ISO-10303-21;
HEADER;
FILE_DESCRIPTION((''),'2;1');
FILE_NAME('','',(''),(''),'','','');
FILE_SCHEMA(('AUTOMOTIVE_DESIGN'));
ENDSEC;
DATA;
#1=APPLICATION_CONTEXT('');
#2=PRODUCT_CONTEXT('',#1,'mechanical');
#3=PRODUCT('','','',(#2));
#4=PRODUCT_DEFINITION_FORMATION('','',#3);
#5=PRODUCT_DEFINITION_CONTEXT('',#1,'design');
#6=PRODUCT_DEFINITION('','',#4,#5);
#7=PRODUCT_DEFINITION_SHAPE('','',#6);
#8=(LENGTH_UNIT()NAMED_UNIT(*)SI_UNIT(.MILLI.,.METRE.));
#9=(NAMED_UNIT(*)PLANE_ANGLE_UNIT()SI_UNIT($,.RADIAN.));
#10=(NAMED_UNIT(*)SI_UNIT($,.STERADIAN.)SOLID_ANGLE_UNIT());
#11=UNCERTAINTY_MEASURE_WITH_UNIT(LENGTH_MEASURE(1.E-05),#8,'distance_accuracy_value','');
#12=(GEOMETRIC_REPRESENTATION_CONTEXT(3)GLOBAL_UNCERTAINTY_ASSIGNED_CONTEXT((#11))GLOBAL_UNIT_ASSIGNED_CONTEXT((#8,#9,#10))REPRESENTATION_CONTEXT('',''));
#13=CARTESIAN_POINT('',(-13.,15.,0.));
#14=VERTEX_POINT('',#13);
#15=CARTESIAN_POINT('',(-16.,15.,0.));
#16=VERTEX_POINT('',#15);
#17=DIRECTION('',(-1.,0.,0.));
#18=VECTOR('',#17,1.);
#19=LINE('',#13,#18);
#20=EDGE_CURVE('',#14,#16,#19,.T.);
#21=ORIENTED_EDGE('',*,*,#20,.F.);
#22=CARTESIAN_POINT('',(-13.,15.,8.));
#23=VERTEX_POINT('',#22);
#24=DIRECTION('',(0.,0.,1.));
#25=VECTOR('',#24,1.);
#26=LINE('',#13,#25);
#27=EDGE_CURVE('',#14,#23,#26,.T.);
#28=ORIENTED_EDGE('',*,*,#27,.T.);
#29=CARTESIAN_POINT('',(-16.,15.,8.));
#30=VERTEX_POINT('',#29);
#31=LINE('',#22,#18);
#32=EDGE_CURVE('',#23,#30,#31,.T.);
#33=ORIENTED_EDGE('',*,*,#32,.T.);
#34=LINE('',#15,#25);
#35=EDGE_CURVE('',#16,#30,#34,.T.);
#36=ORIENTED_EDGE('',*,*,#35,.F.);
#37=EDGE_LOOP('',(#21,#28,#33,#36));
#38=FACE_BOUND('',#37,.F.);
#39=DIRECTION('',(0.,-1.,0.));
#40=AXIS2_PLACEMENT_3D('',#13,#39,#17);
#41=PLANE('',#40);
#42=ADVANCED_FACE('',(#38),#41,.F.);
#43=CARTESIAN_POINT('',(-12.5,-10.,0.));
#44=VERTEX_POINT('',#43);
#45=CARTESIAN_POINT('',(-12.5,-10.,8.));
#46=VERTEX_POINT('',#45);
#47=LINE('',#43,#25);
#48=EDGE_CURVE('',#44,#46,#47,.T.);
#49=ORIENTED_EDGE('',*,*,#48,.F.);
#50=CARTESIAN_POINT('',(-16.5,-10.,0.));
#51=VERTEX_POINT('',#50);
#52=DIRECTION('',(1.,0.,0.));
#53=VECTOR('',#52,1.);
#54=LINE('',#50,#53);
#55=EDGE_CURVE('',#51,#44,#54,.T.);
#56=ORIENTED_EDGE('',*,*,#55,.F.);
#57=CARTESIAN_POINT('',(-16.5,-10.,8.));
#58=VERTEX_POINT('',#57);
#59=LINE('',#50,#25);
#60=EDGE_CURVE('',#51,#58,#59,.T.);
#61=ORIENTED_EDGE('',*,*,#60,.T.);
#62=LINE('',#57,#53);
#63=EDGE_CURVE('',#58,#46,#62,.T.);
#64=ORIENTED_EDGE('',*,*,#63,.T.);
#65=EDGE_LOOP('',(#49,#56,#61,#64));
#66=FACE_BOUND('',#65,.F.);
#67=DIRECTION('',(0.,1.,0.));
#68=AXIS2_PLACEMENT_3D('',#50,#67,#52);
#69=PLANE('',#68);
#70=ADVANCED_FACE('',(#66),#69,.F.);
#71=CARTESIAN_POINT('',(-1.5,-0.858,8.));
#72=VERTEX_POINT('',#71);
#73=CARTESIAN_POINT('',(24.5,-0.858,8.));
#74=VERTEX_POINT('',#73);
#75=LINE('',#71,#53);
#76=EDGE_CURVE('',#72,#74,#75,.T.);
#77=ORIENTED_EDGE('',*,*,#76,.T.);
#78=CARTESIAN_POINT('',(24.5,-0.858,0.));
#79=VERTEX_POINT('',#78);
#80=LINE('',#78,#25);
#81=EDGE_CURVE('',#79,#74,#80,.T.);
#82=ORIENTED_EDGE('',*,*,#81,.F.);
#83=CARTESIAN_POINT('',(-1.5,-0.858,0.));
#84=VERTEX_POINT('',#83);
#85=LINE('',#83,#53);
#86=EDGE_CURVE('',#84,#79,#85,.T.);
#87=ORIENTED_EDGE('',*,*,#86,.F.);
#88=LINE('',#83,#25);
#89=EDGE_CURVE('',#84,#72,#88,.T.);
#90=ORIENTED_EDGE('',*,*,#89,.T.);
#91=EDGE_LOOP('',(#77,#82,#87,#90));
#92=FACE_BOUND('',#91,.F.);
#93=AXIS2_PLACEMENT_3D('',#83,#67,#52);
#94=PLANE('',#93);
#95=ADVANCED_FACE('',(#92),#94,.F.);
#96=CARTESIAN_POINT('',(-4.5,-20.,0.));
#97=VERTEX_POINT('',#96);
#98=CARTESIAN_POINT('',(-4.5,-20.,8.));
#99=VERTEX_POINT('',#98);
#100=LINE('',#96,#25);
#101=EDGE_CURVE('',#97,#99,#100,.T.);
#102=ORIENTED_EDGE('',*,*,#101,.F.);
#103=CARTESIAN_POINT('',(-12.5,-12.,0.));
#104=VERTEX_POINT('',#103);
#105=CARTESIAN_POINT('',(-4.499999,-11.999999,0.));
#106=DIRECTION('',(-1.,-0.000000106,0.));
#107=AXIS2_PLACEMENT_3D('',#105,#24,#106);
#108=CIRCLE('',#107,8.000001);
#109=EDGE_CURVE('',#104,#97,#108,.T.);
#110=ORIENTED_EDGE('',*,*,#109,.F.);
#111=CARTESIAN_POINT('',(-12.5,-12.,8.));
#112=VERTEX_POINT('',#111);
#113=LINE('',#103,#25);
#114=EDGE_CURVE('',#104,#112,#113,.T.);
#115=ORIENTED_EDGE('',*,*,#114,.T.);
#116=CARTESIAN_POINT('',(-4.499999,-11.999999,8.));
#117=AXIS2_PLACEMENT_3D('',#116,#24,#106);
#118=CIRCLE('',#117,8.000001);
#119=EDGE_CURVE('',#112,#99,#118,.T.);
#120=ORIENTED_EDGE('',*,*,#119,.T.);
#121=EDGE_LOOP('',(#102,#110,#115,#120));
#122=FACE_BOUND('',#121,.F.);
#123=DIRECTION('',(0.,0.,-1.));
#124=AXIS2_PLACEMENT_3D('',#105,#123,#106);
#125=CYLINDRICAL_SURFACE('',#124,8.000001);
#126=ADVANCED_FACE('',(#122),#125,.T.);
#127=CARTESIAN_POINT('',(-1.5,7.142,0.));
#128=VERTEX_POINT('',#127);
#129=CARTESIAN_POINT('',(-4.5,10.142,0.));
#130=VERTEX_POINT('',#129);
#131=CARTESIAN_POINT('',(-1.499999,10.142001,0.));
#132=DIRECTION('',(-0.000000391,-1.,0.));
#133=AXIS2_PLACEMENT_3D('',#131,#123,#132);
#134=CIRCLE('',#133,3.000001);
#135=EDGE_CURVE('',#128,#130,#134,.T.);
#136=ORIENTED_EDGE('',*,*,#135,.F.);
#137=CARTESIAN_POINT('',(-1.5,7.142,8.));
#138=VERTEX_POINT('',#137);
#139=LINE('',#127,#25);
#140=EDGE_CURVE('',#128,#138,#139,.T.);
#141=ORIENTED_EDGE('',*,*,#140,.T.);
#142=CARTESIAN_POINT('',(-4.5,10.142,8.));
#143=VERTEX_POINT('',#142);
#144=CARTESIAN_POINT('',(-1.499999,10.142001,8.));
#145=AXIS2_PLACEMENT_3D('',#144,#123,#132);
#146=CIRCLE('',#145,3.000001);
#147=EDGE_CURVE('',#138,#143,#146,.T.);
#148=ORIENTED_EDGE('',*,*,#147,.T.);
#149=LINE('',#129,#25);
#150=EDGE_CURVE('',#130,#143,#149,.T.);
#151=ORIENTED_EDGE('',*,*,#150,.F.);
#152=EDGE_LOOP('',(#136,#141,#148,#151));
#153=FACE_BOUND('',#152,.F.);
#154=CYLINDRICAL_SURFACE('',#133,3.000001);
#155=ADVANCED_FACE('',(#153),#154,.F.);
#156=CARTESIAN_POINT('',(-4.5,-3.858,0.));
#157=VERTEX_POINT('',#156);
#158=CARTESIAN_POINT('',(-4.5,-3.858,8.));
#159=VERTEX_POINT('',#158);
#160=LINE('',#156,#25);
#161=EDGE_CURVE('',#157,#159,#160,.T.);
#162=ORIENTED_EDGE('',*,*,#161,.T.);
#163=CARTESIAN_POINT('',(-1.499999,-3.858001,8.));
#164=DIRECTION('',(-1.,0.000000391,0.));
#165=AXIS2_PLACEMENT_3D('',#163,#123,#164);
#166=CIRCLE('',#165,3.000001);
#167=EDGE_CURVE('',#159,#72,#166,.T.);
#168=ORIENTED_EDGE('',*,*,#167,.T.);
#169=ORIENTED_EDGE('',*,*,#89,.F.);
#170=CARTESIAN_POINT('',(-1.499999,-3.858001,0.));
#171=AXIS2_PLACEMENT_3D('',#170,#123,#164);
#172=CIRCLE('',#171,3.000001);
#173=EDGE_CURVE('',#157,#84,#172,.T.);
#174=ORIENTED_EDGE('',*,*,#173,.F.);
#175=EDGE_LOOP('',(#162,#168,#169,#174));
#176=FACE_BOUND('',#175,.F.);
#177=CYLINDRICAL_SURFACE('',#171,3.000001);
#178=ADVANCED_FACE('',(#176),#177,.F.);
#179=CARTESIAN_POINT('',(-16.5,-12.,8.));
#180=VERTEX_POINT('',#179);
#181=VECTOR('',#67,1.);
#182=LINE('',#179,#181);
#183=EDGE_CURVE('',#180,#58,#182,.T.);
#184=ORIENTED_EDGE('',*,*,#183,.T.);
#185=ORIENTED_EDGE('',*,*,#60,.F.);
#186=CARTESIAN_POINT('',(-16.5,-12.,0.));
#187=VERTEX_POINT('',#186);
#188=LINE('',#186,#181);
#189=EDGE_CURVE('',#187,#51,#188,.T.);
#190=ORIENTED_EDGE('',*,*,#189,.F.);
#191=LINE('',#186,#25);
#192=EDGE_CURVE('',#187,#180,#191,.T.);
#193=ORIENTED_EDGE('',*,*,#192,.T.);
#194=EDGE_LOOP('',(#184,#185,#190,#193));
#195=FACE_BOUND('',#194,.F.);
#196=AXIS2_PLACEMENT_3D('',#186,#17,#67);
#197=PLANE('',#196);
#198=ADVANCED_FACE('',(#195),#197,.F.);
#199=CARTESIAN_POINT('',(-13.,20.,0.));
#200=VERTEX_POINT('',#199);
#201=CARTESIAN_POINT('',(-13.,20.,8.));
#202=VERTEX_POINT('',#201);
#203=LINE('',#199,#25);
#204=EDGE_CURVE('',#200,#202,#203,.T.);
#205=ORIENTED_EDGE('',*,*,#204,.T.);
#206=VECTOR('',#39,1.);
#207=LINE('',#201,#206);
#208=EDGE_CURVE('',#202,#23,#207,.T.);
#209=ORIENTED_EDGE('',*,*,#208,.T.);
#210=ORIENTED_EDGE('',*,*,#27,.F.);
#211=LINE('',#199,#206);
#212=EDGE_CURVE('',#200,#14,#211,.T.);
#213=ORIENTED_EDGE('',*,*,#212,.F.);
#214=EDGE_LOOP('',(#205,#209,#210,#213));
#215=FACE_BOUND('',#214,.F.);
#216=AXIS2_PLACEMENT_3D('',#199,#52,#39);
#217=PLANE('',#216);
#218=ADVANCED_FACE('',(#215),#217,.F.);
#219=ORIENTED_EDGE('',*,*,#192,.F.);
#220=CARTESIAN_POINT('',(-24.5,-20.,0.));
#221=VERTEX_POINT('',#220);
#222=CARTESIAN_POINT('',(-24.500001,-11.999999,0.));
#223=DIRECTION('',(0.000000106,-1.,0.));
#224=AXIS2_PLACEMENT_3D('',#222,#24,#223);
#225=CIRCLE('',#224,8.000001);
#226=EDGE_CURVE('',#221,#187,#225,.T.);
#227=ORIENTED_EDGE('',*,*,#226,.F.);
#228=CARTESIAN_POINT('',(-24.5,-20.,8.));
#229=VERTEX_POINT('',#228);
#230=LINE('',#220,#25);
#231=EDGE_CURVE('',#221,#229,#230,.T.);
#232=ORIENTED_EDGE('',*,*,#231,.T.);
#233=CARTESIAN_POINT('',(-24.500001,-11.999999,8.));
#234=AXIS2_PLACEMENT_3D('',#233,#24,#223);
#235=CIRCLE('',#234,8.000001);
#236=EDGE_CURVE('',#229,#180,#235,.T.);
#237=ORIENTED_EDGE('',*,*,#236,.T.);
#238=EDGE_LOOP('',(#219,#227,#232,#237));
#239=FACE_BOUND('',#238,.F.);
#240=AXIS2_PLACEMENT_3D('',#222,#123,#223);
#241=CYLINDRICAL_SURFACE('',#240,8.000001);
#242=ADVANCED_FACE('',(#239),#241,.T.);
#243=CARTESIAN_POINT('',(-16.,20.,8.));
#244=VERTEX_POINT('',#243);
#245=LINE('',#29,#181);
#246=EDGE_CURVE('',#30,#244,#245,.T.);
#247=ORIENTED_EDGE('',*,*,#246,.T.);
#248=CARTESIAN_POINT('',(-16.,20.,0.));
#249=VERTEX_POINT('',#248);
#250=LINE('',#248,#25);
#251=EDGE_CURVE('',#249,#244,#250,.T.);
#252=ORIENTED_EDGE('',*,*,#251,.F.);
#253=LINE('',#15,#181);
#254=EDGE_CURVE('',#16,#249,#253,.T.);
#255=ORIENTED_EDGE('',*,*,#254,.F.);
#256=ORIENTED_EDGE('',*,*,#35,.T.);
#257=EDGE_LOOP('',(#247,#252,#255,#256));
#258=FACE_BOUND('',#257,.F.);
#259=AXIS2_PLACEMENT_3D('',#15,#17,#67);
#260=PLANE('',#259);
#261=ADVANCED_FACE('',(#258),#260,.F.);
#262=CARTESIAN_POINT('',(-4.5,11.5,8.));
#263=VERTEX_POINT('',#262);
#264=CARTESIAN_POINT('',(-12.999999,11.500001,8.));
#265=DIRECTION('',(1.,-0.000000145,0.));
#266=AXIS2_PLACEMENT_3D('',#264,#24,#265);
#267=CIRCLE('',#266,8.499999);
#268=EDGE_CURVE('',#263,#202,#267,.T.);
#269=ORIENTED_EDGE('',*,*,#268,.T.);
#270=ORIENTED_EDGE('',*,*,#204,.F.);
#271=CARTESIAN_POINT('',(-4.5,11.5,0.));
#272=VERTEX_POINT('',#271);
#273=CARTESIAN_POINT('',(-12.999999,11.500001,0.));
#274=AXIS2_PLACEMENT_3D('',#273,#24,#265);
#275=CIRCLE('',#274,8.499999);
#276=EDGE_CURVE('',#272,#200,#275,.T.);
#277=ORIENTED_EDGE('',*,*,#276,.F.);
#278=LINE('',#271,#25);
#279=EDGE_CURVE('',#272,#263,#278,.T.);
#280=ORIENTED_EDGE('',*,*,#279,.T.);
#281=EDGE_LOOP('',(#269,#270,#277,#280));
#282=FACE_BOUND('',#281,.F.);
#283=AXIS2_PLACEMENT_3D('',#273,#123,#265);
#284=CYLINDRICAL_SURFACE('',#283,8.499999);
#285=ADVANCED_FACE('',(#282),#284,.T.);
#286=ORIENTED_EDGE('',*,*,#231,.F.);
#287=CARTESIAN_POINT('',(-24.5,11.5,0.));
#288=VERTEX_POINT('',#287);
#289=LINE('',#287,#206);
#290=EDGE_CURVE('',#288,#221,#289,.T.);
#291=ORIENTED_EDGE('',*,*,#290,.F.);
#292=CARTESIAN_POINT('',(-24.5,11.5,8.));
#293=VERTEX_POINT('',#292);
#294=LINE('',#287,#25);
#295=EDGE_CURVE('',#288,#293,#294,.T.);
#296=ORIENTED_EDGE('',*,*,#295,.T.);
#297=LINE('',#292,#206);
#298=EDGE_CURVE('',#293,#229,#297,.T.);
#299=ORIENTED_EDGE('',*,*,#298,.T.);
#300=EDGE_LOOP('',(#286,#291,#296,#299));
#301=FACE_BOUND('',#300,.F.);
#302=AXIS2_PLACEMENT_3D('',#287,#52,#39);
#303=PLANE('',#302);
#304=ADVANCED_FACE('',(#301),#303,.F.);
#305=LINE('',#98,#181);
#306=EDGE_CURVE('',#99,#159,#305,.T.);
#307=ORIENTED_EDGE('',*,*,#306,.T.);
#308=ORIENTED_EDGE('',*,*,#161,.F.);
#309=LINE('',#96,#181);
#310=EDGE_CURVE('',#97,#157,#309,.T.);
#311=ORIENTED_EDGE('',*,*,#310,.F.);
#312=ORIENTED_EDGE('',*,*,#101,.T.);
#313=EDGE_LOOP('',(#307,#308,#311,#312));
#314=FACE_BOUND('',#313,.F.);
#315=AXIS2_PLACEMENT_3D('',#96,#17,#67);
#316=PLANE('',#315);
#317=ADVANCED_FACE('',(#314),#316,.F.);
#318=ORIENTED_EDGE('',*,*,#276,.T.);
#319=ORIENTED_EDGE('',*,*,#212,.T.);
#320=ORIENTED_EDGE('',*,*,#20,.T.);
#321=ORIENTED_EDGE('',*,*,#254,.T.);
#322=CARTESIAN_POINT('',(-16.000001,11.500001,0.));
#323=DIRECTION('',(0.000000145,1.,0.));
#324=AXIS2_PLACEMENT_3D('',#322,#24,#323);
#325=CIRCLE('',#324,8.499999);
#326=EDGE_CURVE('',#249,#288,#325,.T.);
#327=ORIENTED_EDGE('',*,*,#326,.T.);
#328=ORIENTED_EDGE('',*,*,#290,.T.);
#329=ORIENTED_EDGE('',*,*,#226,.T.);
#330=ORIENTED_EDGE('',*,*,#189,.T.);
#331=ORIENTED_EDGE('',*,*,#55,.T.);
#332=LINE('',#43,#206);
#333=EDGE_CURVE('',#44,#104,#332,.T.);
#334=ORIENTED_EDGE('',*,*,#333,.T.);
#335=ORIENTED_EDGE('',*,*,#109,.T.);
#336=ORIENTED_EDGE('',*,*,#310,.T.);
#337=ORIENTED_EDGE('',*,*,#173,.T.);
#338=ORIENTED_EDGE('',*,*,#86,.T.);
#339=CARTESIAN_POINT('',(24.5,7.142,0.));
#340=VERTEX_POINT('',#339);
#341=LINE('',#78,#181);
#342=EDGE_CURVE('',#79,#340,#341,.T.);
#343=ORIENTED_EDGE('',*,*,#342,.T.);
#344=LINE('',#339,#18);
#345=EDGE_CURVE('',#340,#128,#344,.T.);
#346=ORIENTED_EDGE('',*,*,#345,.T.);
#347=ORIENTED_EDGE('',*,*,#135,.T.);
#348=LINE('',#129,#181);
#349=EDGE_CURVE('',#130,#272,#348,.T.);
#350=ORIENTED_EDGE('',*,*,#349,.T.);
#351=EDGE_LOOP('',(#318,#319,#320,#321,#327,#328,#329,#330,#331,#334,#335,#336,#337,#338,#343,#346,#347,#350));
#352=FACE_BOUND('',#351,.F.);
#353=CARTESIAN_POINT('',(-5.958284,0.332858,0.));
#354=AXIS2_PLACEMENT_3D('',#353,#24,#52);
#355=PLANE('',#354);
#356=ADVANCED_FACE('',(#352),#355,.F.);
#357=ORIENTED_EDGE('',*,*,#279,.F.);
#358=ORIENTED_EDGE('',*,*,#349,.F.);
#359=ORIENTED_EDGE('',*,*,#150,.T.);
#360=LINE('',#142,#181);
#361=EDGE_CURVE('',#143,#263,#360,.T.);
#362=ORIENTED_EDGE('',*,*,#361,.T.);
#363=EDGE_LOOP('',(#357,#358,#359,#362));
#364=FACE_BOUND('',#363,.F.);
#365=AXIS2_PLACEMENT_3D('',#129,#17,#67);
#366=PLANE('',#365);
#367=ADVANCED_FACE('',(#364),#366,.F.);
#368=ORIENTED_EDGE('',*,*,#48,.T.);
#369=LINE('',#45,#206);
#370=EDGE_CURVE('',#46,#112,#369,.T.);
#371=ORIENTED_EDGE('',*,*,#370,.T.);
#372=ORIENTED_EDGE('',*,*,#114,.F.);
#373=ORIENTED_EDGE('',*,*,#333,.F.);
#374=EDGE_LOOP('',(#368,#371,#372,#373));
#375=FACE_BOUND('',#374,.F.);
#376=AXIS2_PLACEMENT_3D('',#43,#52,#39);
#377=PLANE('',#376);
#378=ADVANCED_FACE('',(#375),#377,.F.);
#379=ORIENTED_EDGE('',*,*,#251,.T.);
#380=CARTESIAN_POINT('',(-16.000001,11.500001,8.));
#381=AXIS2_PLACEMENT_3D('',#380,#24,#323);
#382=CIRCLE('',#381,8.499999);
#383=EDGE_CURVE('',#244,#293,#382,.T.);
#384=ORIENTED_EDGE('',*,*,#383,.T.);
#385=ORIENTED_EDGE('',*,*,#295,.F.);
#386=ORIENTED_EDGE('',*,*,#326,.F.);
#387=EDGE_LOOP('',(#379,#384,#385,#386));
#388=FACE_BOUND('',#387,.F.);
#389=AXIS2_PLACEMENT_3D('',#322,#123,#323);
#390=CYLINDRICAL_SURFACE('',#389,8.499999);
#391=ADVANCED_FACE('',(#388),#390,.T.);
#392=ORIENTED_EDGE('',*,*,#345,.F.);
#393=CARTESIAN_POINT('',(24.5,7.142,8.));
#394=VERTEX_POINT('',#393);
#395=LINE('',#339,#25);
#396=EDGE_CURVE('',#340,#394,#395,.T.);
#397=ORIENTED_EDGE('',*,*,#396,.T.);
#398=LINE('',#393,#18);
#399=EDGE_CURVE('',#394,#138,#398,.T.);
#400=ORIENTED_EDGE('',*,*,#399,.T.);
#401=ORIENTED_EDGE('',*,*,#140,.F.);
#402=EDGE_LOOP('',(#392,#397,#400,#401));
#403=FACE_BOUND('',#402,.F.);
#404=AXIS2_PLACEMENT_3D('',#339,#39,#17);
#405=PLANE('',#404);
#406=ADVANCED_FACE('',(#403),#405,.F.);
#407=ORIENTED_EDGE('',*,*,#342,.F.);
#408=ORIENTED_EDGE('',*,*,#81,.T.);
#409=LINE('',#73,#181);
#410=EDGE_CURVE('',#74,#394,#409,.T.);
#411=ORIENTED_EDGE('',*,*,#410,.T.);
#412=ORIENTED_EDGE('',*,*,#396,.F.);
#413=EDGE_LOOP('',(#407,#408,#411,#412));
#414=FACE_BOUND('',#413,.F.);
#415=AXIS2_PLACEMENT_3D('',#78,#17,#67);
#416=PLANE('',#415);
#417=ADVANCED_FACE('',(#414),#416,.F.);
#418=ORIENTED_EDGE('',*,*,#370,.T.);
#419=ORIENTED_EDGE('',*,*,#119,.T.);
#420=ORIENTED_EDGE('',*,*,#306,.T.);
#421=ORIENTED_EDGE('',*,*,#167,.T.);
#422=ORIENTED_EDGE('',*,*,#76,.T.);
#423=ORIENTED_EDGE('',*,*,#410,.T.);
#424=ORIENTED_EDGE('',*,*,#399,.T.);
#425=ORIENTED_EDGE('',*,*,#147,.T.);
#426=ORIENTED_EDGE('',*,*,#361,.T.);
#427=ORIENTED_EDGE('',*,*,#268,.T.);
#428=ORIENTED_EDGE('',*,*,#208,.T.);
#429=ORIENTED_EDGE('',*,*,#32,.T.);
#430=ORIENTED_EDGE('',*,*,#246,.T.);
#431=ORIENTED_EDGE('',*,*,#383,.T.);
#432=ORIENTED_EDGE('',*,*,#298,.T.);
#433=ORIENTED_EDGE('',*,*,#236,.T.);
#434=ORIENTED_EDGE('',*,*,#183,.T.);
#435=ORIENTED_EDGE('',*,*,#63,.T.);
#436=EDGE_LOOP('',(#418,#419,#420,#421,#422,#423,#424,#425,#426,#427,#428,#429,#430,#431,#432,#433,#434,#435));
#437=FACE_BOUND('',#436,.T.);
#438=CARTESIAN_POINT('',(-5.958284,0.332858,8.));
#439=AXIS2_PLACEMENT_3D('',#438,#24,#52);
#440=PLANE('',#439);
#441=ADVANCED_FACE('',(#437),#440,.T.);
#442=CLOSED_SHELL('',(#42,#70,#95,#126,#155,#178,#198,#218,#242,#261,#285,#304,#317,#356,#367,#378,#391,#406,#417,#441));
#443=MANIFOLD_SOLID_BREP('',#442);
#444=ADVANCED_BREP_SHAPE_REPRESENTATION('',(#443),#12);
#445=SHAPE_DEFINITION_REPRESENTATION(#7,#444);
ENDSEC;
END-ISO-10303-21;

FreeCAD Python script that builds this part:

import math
import FreeCAD as App
import Part
import Sketcher
from FreeCAD import Vector

doc = App.newDocument("Part")
body = doc.addObject("PartDesign::Body", "Body")

sketch1 = body.newObject("Sketcher::SketchObject", "Sketch")
sketch1.AttachmentSupport = (doc.getObject("XY_Plane"), [""])
sketch1.MapMode = "FlatFace"
sketch1.addGeometry(Part.LineSegment(Vector(24.5, -0.858, 0), Vector(24.5, 7.142, 0)), False)
sketch1.addGeometry(Part.LineSegment(Vector(24.5, 7.142, 0), Vector(-1.5, 7.142, 0)), False)
sketch1.addGeometry(Part.ArcOfCircle(Part.Circle(Vector(-1.499999, 10.142001, 0), Vector(0, 0, 1), 3.000001), math.radians(-179.999978), math.radians(-90.000022)), False)
sketch1.addGeometry(Part.LineSegment(Vector(-4.5, 10.142, 0), Vector(-4.5, 11.5, 0)), False)
sketch1.addGeometry(Part.ArcOfCircle(Part.Circle(Vector(-12.999999, 11.500001, 0), Vector(0, 0, 1), 8.499999), math.radians(-0.000008), math.radians(90.000008)), False)
sketch1.addGeometry(Part.LineSegment(Vector(-13, 20, 0), Vector(-13, 15, 0)), False)
sketch1.addGeometry(Part.LineSegment(Vector(-13, 15, 0), Vector(-16, 15, 0)), False)
sketch1.addGeometry(Part.LineSegment(Vector(-16, 15, 0), Vector(-16, 20, 0)), False)
sketch1.addGeometry(Part.ArcOfCircle(Part.Circle(Vector(-16.000001, 11.500001, 0), Vector(0, 0, 1), 8.499999), math.radians(89.999992), math.radians(180.000008)), False)
sketch1.addGeometry(Part.LineSegment(Vector(-24.5, 11.5, 0), Vector(-24.5, -20, 0)), False)
sketch1.addGeometry(Part.ArcOfCircle(Part.Circle(Vector(-24.500001, -11.999999, 0), Vector(0, 0, 1), 8.000001), math.radians(-89.999994), math.radians(-0.000006)), False)
sketch1.addGeometry(Part.LineSegment(Vector(-16.5, -12, 0), Vector(-16.5, -10, 0)), False)
sketch1.addGeometry(Part.LineSegment(Vector(-16.5, -10, 0), Vector(-12.5, -10, 0)), False)
sketch1.addGeometry(Part.LineSegment(Vector(-12.5, -10, 0), Vector(-12.5, -12, 0)), False)
sketch1.addGeometry(Part.ArcOfCircle(Part.Circle(Vector(-4.499999, -11.999999, 0), Vector(0, 0, 1), 8.000001), math.radians(-179.999994), math.radians(-90.000006)), False)
sketch1.addGeometry(Part.LineSegment(Vector(-4.5, -20, 0), Vector(-4.5, -3.858, 0)), False)
sketch1.addGeometry(Part.ArcOfCircle(Part.Circle(Vector(-1.499999, -3.858001, 0), Vector(0, 0, 1), 3.000001), math.radians(90.000022), math.radians(179.999978)), False)
sketch1.addGeometry(Part.LineSegment(Vector(-1.5, -0.858, 0), Vector(24.5, -0.858, 0)), False)
sketch1.addConstraint(Sketcher.Constraint("Coincident", 0, 2, 1, 1))
sketch1.addConstraint(Sketcher.Constraint("Tangent", 1, 2, 2, 2))
sketch1.addConstraint(Sketcher.Constraint("Tangent", 2, 1, 3, 1))
sketch1.addConstraint(Sketcher.Constraint("Tangent", 3, 2, 4, 1))
sketch1.addConstraint(Sketcher.Constraint("Coincident", 4, 2, 5, 1))
sketch1.addConstraint(Sketcher.Constraint("Coincident", 5, 2, 6, 1))
sketch1.addConstraint(Sketcher.Constraint("Coincident", 6, 2, 7, 1))
sketch1.addConstraint(Sketcher.Constraint("Coincident", 7, 2, 8, 1))
sketch1.addConstraint(Sketcher.Constraint("Tangent", 8, 2, 9, 1))
sketch1.addConstraint(Sketcher.Constraint("Coincident", 9, 2, 10, 1))
sketch1.addConstraint(Sketcher.Constraint("Tangent", 10, 2, 11, 1))
sketch1.addConstraint(Sketcher.Constraint("Coincident", 11, 2, 12, 1))
sketch1.addConstraint(Sketcher.Constraint("Coincident", 12, 2, 13, 1))
sketch1.addConstraint(Sketcher.Constraint("Tangent", 13, 2, 14, 1))
sketch1.addConstraint(Sketcher.Constraint("Coincident", 14, 2, 15, 1))
sketch1.addConstraint(Sketcher.Constraint("Tangent", 15, 2, 16, 2))
sketch1.addConstraint(Sketcher.Constraint("Tangent", 16, 1, 17, 1))
sketch1.addConstraint(Sketcher.Constraint("Coincident", 17, 2, 0, 1))
sketch1.addConstraint(Sketcher.Constraint("Vertical", 0))
sketch1.addConstraint(Sketcher.Constraint("Horizontal", 1))
sketch1.addConstraint(Sketcher.Constraint("Vertical", 3))
sketch1.addConstraint(Sketcher.Constraint("Vertical", 5))
sketch1.addConstraint(Sketcher.Constraint("Horizontal", 6))
sketch1.addConstraint(Sketcher.Constraint("Vertical", 7))
sketch1.addConstraint(Sketcher.Constraint("Vertical", 9))
sketch1.addConstraint(Sketcher.Constraint("Vertical", 11))
sketch1.addConstraint(Sketcher.Constraint("Horizontal", 12))
sketch1.addConstraint(Sketcher.Constraint("Vertical", 13))
sketch1.addConstraint(Sketcher.Constraint("Vertical", 15))
sketch1.addConstraint(Sketcher.Constraint("Horizontal", 17))
sketch1.addConstraint(Sketcher.Constraint("Equal", 4, 8))
sketch1.addConstraint(Sketcher.Constraint("Equal", 10, 14))
sketch1.addConstraint(Sketcher.Constraint("Equal", 2, 16))
sketch1.addConstraint(Sketcher.Constraint("Horizontal", 4, 3, 8, 3))
sketch1.addConstraint(Sketcher.Constraint("Horizontal", 10, 3, 14, 3))
sketch1.addConstraint(Sketcher.Constraint("Vertical", 2, 3, 16, 3))
sketch1.addConstraint(Sketcher.Constraint("Vertical", 14, 3, 2, 1))
sketch1.addConstraint(Sketcher.Constraint("Vertical", 8, 3, 6, 2))
sketch1.addConstraint(Sketcher.Constraint("Vertical", 10, 3, 8, 2))
sketch1.addConstraint(Sketcher.Constraint("Radius", 2, 3.000001))
sketch1.addConstraint(Sketcher.Constraint("Radius", 10, 8.000001))
sketch1.addConstraint(Sketcher.Constraint("Radius", 4, 8.499999))
sketch1.addConstraint(Sketcher.Constraint("DistanceX", 1, 2, 1, 1, 26.0))
sketch1.addConstraint(Sketcher.Constraint("DistanceX", 6, 2, 6, 1, 3.0))
sketch1.addConstraint(Sketcher.Constraint("DistanceX", 12, 1, 12, 2, 4.0))
sketch1.addConstraint(Sketcher.Constraint("DistanceY", 0, 1, 0, 2, 8.0))
sketch1.addConstraint(Sketcher.Constraint("DistanceY", 5, 2, 5, 1, 5.0))
sketch1.addConstraint(Sketcher.Constraint("DistanceY", 11, 1, 11, 2, 2.0))
sketch1.addConstraint(Sketcher.Constraint("DistanceY", 9, 2, 9, 1, 31.5))
sketch1.addConstraint(Sketcher.Constraint("DistanceX", 4, 3, -1, 1, 12.999999))
sketch1.addConstraint(Sketcher.Constraint("DistanceY", 10, 3, -1, 1, 11.999999))
sketch1.addConstraint(Sketcher.Constraint("DistanceY", 3, 1, 3, 2, 1.358))
pad1 = body.newObject("PartDesign::Pad", "Pad")
pad1.Profile = sketch1
pad1.Length = 8

doc.recompute()
